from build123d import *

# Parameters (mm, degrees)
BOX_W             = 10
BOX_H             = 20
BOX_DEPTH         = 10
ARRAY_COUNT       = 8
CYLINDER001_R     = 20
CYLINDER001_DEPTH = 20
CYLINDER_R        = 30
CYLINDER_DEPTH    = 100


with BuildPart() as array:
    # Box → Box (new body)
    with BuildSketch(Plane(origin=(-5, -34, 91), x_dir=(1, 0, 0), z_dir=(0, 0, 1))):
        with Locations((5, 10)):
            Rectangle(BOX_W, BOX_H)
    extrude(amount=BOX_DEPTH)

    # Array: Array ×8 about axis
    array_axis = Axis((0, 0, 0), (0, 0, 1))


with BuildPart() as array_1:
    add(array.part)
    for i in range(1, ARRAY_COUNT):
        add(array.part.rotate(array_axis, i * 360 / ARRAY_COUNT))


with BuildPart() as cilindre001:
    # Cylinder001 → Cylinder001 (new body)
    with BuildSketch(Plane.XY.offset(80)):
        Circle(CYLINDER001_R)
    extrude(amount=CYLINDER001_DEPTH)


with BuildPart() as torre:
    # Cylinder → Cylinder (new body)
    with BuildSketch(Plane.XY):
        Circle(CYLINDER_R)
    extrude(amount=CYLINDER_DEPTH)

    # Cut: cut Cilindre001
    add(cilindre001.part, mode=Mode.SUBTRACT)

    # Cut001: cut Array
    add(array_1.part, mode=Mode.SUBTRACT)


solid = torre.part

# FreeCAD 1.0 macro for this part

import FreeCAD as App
import Part
import Sketcher

V = App.Vector
Q = App.Units.Quantity

doc = App.newDocument("Part")
body = doc.addObject("PartDesign::Body", "Body")

# Sketch on XY plane
sketch1 = body.newObject("Sketcher::SketchObject", "Sketch")
sketch1.AttachmentSupport = (doc.getObject("XY_Plane"), [""])
sketch1.MapMode = "FlatFace"
sketch1.AttachmentOffset = App.Placement(V(0, 0, 91), App.Rotation())
sketch1.addGeometry([
    Part.LineSegment(V(-5, -14, 0), V(-5, -34, 0)),
    Part.LineSegment(V(-5, -34, 0), V(5, -34, 0)),
    Part.LineSegment(V(5, -34, 0), V(5, -14, 0)),
    Part.LineSegment(V(5, -14, 0), V(-5, -14, 0)),
], False)
sketch1.addConstraint([
    Sketcher.Constraint("Coincident", 0, 2, 1, 1),
    Sketcher.Constraint("Coincident", 1, 2, 2, 1),
    Sketcher.Constraint("Coincident", 2, 2, 3, 1),
    Sketcher.Constraint("Coincident", 3, 2, 0, 1),
    Sketcher.Constraint("Vertical", 0),
    Sketcher.Constraint("Horizontal", 1),
    Sketcher.Constraint("Vertical", 2),
    Sketcher.Constraint("Horizontal", 3),
    Sketcher.Constraint("DistanceX", 1, 1, 1, 2, Q("10 mm")),
    Sketcher.Constraint("DistanceY", 0, 2, 0, 1, Q("20 mm")),
    Sketcher.Constraint("DistanceX", 0, 2, -1, 1, Q("5 mm")),
    Sketcher.Constraint("DistanceY", 0, 2, -1, 1, Q("34 mm")),
])
pad1 = body.newObject("PartDesign::Pad", "Pad")
pad1.Profile = sketch1
pad1.Length = 10
body2 = doc.addObject("PartDesign::Body", "Body001")
body2.AllowCompound = True
doc.recompute()

body2.BaseFeature = body
doc.recompute()

body3 = doc.addObject("PartDesign::Body", "Body002")
body3.BaseFeature = body
body3.Placement = App.Placement(V(0, 0, 0), App.Rotation(V(0, 0, 1), 45))
boolean = body2.newObject("PartDesign::Boolean", "Boolean")
boolean.Type = "Fuse"
boolean.addObjects([body3])
doc.recompute()

body4 = doc.addObject("PartDesign::Body", "Body003")
body4.BaseFeature = body
body4.Placement = App.Placement(V(0, 0, 0), App.Rotation(V(0, 0, 1), 90))
boolean2 = body2.newObject("PartDesign::Boolean", "Boolean001")
boolean2.Type = "Fuse"
boolean2.addObjects([body4])
doc.recompute()

body5 = doc.addObject("PartDesign::Body", "Body004")
body5.BaseFeature = body
body5.Placement = App.Placement(V(0, 0, 0), App.Rotation(V(0, 0, 1), 135))
boolean3 = body2.newObject("PartDesign::Boolean", "Boolean002")
boolean3.Type = "Fuse"
boolean3.addObjects([body5])
doc.recompute()

body6 = doc.addObject("PartDesign::Body", "Body005")
body6.BaseFeature = body
body6.Placement = App.Placement(V(0, 0, 0), App.Rotation(V(0, 0, 1), 180))
boolean4 = body2.newObject("PartDesign::Boolean", "Boolean003")
boolean4.Type = "Fuse"
boolean4.addObjects([body6])
doc.recompute()

body7 = doc.addObject("PartDesign::Body", "Body006")
body7.BaseFeature = body
body7.Placement = App.Placement(V(0, 0, 0), App.Rotation(V(0, 0, 1), 225))
boolean5 = body2.newObject("PartDesign::Boolean", "Boolean004")
boolean5.Type = "Fuse"
boolean5.addObjects([body7])
doc.recompute()

body8 = doc.addObject("PartDesign::Body", "Body007")
body8.BaseFeature = body
body8.Placement = App.Placement(V(0, 0, 0), App.Rotation(V(0, 0, 1), 270))
boolean6 = body2.newObject("PartDesign::Boolean", "Boolean005")
boolean6.Type = "Fuse"
boolean6.addObjects([body8])
doc.recompute()

body.Placement = App.Placement(V(0, 0, 0), App.Rotation(V(0, 0, 1), 315))
boolean7 = body2.newObject("PartDesign::Boolean", "Boolean006")
boolean7.Type = "Fuse"
boolean7.addObjects([body])
body9 = doc.addObject("PartDesign::Body", "Body008")

# Sketch on XY plane
sketch2 = body9.newObject("Sketcher::SketchObject", "Sketch001")
sketch2.AttachmentSupport = (doc.getObject("XY_Plane008"), [""])
sketch2.MapMode = "FlatFace"
sketch2.AttachmentOffset = App.Placement(V(0, 0, 80), App.Rotation())
sketch2.addGeometry(Part.Circle(V(0, 0, 0), V(0, 0, 1), 20), False)
sketch2.addConstraint([
    Sketcher.Constraint("Coincident", 0, 3, -1, 1),
    Sketcher.Constraint("Diameter", 0, Q("40 mm")),
])
pad2 = body9.newObject("PartDesign::Pad", "Pad001")
pad2.Profile = sketch2
pad2.Length = 20
body10 = doc.addObject("PartDesign::Body", "Body009")

# Sketch on XY plane
sketch3 = body10.newObject("Sketcher::SketchObject", "Sketch002")
sketch3.AttachmentSupport = (doc.getObject("XY_Plane009"), [""])
sketch3.MapMode = "FlatFace"
sketch3.addGeometry(Part.Circle(V(0, 0, 0), V(0, 0, 1), 30), False)
sketch3.addConstraint([
    Sketcher.Constraint("Coincident", 0, 3, -1, 1),
    Sketcher.Constraint("Diameter", 0, Q("60 mm")),
])
pad3 = body10.newObject("PartDesign::Pad", "Pad002")
pad3.Profile = sketch3
pad3.Length = 100
doc.recompute()

boolean8 = body10.newObject("PartDesign::Boolean", "Boolean007")
boolean8.Type = "Cut"
boolean8.addObjects([body9])
doc.recompute()

boolean9 = body10.newObject("PartDesign::Boolean", "Boolean008")
boolean9.Type = "Cut"
boolean9.addObjects([body2])

doc.recompute()
